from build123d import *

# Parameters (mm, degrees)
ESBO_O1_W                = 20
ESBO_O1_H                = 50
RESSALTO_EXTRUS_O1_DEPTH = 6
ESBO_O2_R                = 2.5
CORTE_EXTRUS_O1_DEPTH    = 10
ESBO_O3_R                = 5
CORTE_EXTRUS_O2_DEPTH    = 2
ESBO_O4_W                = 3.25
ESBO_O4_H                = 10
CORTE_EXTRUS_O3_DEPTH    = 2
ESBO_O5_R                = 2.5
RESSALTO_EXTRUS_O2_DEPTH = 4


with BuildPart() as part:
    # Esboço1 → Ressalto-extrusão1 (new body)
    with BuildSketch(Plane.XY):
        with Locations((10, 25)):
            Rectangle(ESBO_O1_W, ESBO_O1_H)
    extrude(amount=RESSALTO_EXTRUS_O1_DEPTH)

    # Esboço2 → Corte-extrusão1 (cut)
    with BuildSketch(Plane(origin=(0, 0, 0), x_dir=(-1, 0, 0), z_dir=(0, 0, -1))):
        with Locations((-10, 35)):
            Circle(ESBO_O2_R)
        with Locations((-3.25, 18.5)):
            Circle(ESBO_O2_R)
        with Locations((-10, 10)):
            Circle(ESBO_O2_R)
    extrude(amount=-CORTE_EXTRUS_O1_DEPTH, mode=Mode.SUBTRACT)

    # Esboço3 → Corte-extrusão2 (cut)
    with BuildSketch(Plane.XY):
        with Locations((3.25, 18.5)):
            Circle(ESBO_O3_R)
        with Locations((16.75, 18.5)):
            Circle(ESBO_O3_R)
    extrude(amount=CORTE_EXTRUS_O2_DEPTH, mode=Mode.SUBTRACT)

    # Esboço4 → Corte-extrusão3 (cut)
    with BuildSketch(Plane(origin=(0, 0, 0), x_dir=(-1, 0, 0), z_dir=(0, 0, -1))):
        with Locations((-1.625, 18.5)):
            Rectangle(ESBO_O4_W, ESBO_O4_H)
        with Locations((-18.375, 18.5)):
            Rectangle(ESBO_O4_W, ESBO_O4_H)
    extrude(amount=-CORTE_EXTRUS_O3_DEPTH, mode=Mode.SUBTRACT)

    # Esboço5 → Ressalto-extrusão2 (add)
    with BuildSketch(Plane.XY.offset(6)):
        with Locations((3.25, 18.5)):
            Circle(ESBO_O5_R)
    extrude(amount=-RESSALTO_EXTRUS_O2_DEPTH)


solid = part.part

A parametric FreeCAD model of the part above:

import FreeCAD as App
import Part
import Sketcher

doc = App.newDocument("Part")
params = doc.addObject("Spreadsheet::Sheet", "Params")
for row, (alias, value) in enumerate([
    ("sketch1_width", "20 mm"),
    ("sketch1_height", "50 mm"),
    ("pad1_length", "6 mm"),
    ("sketch2_diameter", "5 mm"),
    ("pocket1_length", "10 mm"),
    ("sketch3_diameter", "10 mm"),
    ("pocket2_length", "2 mm"),
    ("sketch4_height", "10 mm"),
    ("sketch4_width", "3.25 mm"),
    ("pocket3_length", "2 mm"),
    ("sketch5_diameter", "5 mm"),
    ("pad2_length", "4 mm"),
], start=1):
    params.set(f"A{row}", alias)
    params.set(f"B{row}", "=" + value)
    params.setAlias(f"B{row}", alias)

body = doc.addObject("PartDesign::Body", "Body")

sketch1 = body.newObject("Sketcher::SketchObject", "Sketch")
sketch1.AttachmentSupport = (doc.getObject("XY_Plane"), [""])
sketch1.MapMode = "FlatFace"
sketch1.addGeometry([
    Part.LineSegment(App.Vector(0, 50, 0), App.Vector(0, 0, 0)),
    Part.LineSegment(App.Vector(0, 0, 0), App.Vector(20, 0, 0)),
    Part.LineSegment(App.Vector(20, 0, 0), App.Vector(20, 50, 0)),
    Part.LineSegment(App.Vector(20, 50, 0), App.Vector(0, 50, 0)),
], False)
sketch1.addConstraint([
    Sketcher.Constraint("Coincident", 0, 2, 1, 1),
    Sketcher.Constraint("Coincident", 1, 2, 2, 1),
    Sketcher.Constraint("Coincident", 2, 2, 3, 1),
    Sketcher.Constraint("Coincident", 3, 2, 0, 1),
    Sketcher.Constraint("Vertical", 0),
    Sketcher.Constraint("Horizontal", 1),
    Sketcher.Constraint("Vertical", 2),
    Sketcher.Constraint("Horizontal", 3),
    Sketcher.Constraint("Coincident", 0, 2, -1, 1),
    Sketcher.Constraint("DistanceX", 1, 1, 1, 2, 20.0),
    Sketcher.Constraint("DistanceY", 0, 2, 0, 1, 50.0),
])
sketch1.setExpression("Constraints[9]", "Params.sketch1_width")
sketch1.setExpression("Constraints[10]", "Params.sketch1_height")
pad1 = body.newObject("PartDesign::Pad", "Pad")
pad1.Profile = sketch1
pad1.setExpression("Length", "Params.pad1_length")

sketch2 = body.newObject("Sketcher::SketchObject", "Sketch001")
sketch2.AttachmentSupport = (doc.getObject("XY_Plane"), [""])
sketch2.MapMode = "FlatFace"
sketch2.addGeometry([
    Part.Circle(App.Vector(10, 35, 0), App.Vector(0, 0, 1), 2.5),
    Part.Circle(App.Vector(3.2, 18.5, 0), App.Vector(0, 0, 1), 2.5),
    Part.Circle(App.Vector(10, 10, 0), App.Vector(0, 0, 1), 2.5),
], False)
sketch2.addConstraint([
    Sketcher.Constraint("Equal", 0, 1),
    Sketcher.Constraint("Equal", 1, 2),
    Sketcher.Constraint("Vertical", 0, 3, 2, 3),
    Sketcher.Constraint("Diameter", 0, 5.0),
    Sketcher.Constraint("DistanceX", -1, 1, 0, 3, 10.0),
    Sketcher.Constraint("DistanceY", -1, 1, 0, 3, 35.0),
    Sketcher.Constraint("DistanceY", -1, 1, 2, 3, 10.0),
    Sketcher.Constraint("DistanceY", -1, 1, 1, 3, 18.5),
    Sketcher.Constraint("DistanceX", -1, 1, 1, 3, 3.25),
])
sketch2.setExpression("Constraints[3]", "Params.sketch2_diameter")
pocket1 = body.newObject("PartDesign::Pocket", "Pocket")
pocket1.Profile = sketch2
pocket1.setExpression("Length", "Params.pocket1_length")
pocket1.Reversed = True

sketch3 = body.newObject("Sketcher::SketchObject", "Sketch002")
sketch3.AttachmentSupport = (doc.getObject("XY_Plane"), [""])
sketch3.MapMode = "FlatFace"
sketch3.addGeometry([
    Part.Circle(App.Vector(3, 18, 0), App.Vector(0, 0, 1), 5),
    Part.Circle(App.Vector(17, 18, 0), App.Vector(0, 0, 1), 5),
], False)
sketch3.addConstraint([
    Sketcher.Constraint("Equal", 0, 1),
    Sketcher.Constraint("Horizontal", 0, 3, 1, 3),
    Sketcher.Constraint("Diameter", 0, 10.0),
    Sketcher.Constraint("DistanceY", -1, 1, 0, 3, 18.5),
    Sketcher.Constraint("DistanceX", 0, 3, 1, 3, 13.5),
    Sketcher.Constraint("DistanceX", -1, 1, 0, 3, 3.25),
])
sketch3.setExpression("Constraints[2]", "Params.sketch3_diameter")
pocket2 = body.newObject("PartDesign::Pocket", "Pocket001")
pocket2.Profile = sketch3
pocket2.setExpression("Length", "Params.pocket2_length")
pocket2.Reversed = True

sketch4 = body.newObject("Sketcher::SketchObject", "Sketch003")
sketch4.AttachmentSupport = (doc.getObject("XY_Plane"), [""])
sketch4.MapMode = "FlatFace"
sketch4.addGeometry([
    Part.LineSegment(App.Vector(3.2, 23.5, 0), App.Vector(3.2, 13.5, 0)),
    Part.LineSegment(App.Vector(3.2, 13.5, 0), App.Vector(0, 13.5, 0)),
    Part.LineSegment(App.Vector(0, 13.5, 0), App.Vector(0, 23.5, 0)),
    Part.LineSegment(App.Vector(0, 23.5, 0), App.Vector(3.2, 23.5, 0)),
    Part.LineSegment(App.Vector(20, 23.5, 0), App.Vector(20, 13.5, 0)),
    Part.LineSegment(App.Vector(20, 13.5, 0), App.Vector(16.8, 13.5, 0)),
    Part.LineSegment(App.Vector(16.8, 13.5, 0), App.Vector(16.8, 23.5, 0)),
    Part.LineSegment(App.Vector(16.8, 23.5, 0), App.Vector(20, 23.5, 0)),
], False)
sketch4.addConstraint([
    Sketcher.Constraint("Coincident", 0, 2, 1, 1),
    Sketcher.Constraint("Coincident", 1, 2, 2, 1),
    Sketcher.Constraint("Coincident", 2, 2, 3, 1),
    Sketcher.Constraint("Coincident", 3, 2, 0, 1),
    Sketcher.Constraint("Coincident", 4, 2, 5, 1),
    Sketcher.Constraint("Coincident", 5, 2, 6, 1),
    Sketcher.Constraint("Coincident", 6, 2, 7, 1),
    Sketcher.Constraint("Coincident", 7, 2, 4, 1),
    Sketcher.Constraint("Vertical", 0),
    Sketcher.Constraint("Horizontal", 1),
    Sketcher.Constraint("Vertical", 2),
    Sketcher.Constraint("Horizontal", 3),
    Sketcher.Constraint("Vertical", 4),
    Sketcher.Constraint("Horizontal", 5),
    Sketcher.Constraint("Vertical", 6),
    Sketcher.Constraint("Horizontal", 7),
    Sketcher.Constraint("PointOnObject", 1, 2, -2),
    Sketcher.Constraint("Horizontal", 1, 2, 4, 2),
    Sketcher.Constraint("Horizontal", 3, 2, 6, 2),
    Sketcher.Constraint("Equal", 3, 5),
    Sketcher.Constraint("DistanceY", 0, 2, 0, 1, 10.0),
    Sketcher.Constraint("DistanceX", -1, 1, 4, 2, 20.0),
    Sketcher.Constraint("DistanceX", 1, 2, 1, 1, 3.25),
    Sketcher.Constraint("DistanceY", -1, 1, 0, 2, 13.5),
])
sketch4.setExpression("Constraints[20]", "Params.sketch4_height")
sketch4.setExpression("Constraints[22]", "Params.sketch4_width")
pocket3 = body.newObject("PartDesign::Pocket", "Pocket002")
pocket3.Profile = sketch4
pocket3.setExpression("Length", "Params.pocket3_length")
pocket3.Reversed = True

sketch5 = body.newObject("Sketcher::SketchObject", "Sketch004")
sketch5.AttachmentSupport = (doc.getObject("XY_Plane"), [""])
sketch5.MapMode = "FlatFace"
sketch5.AttachmentOffset = App.Placement(App.Vector(0, 0, 6), App.Rotation())
sketch5.addGeometry(Part.Circle(App.Vector(3.2, 18.5, 0), App.Vector(0, 0, 1), 2.5), False)
sketch5.addConstraint([
    Sketcher.Constraint("Diameter", 0, 5.0),
    Sketcher.Constraint("DistanceY", -1, 1, 0, 3, 18.5),
    Sketcher.Constraint("DistanceX", -1, 1, 0, 3, 3.25),
])
sketch5.setExpression("Constraints[0]", "Params.sketch5_diameter")
pad2 = body.newObject("PartDesign::Pad", "Pad001")
pad2.Profile = sketch5
pad2.setExpression("Length", "Params.pad2_length")
pad2.Reversed = True

doc.recompute()
